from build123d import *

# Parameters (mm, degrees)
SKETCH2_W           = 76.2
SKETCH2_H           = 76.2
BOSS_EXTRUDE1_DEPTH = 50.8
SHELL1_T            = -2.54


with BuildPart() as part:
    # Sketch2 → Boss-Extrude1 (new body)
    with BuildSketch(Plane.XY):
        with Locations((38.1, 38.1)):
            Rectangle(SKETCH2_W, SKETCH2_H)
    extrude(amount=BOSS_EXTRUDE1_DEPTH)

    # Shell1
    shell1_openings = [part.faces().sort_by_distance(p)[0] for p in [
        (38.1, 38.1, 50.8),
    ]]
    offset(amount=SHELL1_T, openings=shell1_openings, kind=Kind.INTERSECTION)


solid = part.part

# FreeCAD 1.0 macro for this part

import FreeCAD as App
import Part
import Sketcher
from FreeCAD import Vector
Q = App.Units.Quantity


def faces_at(feature, points):
    """Names of the faces that lie closest to the given points."""
    faces = feature.Shape.Faces
    near = lambda p: min(range(len(faces)), key=lambda i: faces[i].distToShape(Part.Vertex(*p))[0])
    return sorted({f"Face{near(p) + 1}" for p in points})

doc = App.newDocument("Part")
body = doc.addObject("PartDesign::Body", "Body")

# Sketch on XY plane
sketch1 = body.newObject("Sketcher::SketchObject", "Sketch")
sketch1.AttachmentSupport = (doc.getObject("XY_Plane"), [""])
sketch1.MapMode = "FlatFace"
sketch1.addGeometry([
    Part.LineSegment(Vector(0, 76.2, 0), Vector(0, 0, 0)),
    Part.LineSegment(Vector(0, 0, 0), Vector(76.2, 0, 0)),
    Part.LineSegment(Vector(76.2, 0, 0), Vector(76.2, 76.2, 0)),
    Part.LineSegment(Vector(76.2, 76.2, 0), Vector(0, 76.2, 0)),
], False)
sketch1.addConstraint([
    Sketcher.Constraint("Coincident", 0, 2, 1, 1),
    Sketcher.Constraint("Coincident", 1, 2, 2, 1),
    Sketcher.Constraint("Coincident", 2, 2, 3, 1),
    Sketcher.Constraint("Coincident", 3, 2, 0, 1),
    Sketcher.Constraint("Vertical", 0),
    Sketcher.Constraint("Horizontal", 1),
    Sketcher.Constraint("Vertical", 2),
    Sketcher.Constraint("Horizontal", 3),
    Sketcher.Constraint("Coincident", 0, 2, -1, 1),
    Sketcher.Constraint("Equal", 3, 0),
    Sketcher.Constraint("DistanceX", 1, 1, 1, 2, Q("3 in")),
])
pad1 = body.newObject("PartDesign::Pad", "Pad")
pad1.Profile = sketch1
pad1.Length = Q("2 in")
doc.recompute()

thickness = body.newObject("PartDesign::Thickness", "Thickness")
thickness.Base = (pad1, faces_at(pad1, [(38.1, 38.1, 50.8)]))
thickness.Value = Q("0.1 in")
thickness.Reversed = True
thickness.Join = "Intersection"

doc.recompute()
